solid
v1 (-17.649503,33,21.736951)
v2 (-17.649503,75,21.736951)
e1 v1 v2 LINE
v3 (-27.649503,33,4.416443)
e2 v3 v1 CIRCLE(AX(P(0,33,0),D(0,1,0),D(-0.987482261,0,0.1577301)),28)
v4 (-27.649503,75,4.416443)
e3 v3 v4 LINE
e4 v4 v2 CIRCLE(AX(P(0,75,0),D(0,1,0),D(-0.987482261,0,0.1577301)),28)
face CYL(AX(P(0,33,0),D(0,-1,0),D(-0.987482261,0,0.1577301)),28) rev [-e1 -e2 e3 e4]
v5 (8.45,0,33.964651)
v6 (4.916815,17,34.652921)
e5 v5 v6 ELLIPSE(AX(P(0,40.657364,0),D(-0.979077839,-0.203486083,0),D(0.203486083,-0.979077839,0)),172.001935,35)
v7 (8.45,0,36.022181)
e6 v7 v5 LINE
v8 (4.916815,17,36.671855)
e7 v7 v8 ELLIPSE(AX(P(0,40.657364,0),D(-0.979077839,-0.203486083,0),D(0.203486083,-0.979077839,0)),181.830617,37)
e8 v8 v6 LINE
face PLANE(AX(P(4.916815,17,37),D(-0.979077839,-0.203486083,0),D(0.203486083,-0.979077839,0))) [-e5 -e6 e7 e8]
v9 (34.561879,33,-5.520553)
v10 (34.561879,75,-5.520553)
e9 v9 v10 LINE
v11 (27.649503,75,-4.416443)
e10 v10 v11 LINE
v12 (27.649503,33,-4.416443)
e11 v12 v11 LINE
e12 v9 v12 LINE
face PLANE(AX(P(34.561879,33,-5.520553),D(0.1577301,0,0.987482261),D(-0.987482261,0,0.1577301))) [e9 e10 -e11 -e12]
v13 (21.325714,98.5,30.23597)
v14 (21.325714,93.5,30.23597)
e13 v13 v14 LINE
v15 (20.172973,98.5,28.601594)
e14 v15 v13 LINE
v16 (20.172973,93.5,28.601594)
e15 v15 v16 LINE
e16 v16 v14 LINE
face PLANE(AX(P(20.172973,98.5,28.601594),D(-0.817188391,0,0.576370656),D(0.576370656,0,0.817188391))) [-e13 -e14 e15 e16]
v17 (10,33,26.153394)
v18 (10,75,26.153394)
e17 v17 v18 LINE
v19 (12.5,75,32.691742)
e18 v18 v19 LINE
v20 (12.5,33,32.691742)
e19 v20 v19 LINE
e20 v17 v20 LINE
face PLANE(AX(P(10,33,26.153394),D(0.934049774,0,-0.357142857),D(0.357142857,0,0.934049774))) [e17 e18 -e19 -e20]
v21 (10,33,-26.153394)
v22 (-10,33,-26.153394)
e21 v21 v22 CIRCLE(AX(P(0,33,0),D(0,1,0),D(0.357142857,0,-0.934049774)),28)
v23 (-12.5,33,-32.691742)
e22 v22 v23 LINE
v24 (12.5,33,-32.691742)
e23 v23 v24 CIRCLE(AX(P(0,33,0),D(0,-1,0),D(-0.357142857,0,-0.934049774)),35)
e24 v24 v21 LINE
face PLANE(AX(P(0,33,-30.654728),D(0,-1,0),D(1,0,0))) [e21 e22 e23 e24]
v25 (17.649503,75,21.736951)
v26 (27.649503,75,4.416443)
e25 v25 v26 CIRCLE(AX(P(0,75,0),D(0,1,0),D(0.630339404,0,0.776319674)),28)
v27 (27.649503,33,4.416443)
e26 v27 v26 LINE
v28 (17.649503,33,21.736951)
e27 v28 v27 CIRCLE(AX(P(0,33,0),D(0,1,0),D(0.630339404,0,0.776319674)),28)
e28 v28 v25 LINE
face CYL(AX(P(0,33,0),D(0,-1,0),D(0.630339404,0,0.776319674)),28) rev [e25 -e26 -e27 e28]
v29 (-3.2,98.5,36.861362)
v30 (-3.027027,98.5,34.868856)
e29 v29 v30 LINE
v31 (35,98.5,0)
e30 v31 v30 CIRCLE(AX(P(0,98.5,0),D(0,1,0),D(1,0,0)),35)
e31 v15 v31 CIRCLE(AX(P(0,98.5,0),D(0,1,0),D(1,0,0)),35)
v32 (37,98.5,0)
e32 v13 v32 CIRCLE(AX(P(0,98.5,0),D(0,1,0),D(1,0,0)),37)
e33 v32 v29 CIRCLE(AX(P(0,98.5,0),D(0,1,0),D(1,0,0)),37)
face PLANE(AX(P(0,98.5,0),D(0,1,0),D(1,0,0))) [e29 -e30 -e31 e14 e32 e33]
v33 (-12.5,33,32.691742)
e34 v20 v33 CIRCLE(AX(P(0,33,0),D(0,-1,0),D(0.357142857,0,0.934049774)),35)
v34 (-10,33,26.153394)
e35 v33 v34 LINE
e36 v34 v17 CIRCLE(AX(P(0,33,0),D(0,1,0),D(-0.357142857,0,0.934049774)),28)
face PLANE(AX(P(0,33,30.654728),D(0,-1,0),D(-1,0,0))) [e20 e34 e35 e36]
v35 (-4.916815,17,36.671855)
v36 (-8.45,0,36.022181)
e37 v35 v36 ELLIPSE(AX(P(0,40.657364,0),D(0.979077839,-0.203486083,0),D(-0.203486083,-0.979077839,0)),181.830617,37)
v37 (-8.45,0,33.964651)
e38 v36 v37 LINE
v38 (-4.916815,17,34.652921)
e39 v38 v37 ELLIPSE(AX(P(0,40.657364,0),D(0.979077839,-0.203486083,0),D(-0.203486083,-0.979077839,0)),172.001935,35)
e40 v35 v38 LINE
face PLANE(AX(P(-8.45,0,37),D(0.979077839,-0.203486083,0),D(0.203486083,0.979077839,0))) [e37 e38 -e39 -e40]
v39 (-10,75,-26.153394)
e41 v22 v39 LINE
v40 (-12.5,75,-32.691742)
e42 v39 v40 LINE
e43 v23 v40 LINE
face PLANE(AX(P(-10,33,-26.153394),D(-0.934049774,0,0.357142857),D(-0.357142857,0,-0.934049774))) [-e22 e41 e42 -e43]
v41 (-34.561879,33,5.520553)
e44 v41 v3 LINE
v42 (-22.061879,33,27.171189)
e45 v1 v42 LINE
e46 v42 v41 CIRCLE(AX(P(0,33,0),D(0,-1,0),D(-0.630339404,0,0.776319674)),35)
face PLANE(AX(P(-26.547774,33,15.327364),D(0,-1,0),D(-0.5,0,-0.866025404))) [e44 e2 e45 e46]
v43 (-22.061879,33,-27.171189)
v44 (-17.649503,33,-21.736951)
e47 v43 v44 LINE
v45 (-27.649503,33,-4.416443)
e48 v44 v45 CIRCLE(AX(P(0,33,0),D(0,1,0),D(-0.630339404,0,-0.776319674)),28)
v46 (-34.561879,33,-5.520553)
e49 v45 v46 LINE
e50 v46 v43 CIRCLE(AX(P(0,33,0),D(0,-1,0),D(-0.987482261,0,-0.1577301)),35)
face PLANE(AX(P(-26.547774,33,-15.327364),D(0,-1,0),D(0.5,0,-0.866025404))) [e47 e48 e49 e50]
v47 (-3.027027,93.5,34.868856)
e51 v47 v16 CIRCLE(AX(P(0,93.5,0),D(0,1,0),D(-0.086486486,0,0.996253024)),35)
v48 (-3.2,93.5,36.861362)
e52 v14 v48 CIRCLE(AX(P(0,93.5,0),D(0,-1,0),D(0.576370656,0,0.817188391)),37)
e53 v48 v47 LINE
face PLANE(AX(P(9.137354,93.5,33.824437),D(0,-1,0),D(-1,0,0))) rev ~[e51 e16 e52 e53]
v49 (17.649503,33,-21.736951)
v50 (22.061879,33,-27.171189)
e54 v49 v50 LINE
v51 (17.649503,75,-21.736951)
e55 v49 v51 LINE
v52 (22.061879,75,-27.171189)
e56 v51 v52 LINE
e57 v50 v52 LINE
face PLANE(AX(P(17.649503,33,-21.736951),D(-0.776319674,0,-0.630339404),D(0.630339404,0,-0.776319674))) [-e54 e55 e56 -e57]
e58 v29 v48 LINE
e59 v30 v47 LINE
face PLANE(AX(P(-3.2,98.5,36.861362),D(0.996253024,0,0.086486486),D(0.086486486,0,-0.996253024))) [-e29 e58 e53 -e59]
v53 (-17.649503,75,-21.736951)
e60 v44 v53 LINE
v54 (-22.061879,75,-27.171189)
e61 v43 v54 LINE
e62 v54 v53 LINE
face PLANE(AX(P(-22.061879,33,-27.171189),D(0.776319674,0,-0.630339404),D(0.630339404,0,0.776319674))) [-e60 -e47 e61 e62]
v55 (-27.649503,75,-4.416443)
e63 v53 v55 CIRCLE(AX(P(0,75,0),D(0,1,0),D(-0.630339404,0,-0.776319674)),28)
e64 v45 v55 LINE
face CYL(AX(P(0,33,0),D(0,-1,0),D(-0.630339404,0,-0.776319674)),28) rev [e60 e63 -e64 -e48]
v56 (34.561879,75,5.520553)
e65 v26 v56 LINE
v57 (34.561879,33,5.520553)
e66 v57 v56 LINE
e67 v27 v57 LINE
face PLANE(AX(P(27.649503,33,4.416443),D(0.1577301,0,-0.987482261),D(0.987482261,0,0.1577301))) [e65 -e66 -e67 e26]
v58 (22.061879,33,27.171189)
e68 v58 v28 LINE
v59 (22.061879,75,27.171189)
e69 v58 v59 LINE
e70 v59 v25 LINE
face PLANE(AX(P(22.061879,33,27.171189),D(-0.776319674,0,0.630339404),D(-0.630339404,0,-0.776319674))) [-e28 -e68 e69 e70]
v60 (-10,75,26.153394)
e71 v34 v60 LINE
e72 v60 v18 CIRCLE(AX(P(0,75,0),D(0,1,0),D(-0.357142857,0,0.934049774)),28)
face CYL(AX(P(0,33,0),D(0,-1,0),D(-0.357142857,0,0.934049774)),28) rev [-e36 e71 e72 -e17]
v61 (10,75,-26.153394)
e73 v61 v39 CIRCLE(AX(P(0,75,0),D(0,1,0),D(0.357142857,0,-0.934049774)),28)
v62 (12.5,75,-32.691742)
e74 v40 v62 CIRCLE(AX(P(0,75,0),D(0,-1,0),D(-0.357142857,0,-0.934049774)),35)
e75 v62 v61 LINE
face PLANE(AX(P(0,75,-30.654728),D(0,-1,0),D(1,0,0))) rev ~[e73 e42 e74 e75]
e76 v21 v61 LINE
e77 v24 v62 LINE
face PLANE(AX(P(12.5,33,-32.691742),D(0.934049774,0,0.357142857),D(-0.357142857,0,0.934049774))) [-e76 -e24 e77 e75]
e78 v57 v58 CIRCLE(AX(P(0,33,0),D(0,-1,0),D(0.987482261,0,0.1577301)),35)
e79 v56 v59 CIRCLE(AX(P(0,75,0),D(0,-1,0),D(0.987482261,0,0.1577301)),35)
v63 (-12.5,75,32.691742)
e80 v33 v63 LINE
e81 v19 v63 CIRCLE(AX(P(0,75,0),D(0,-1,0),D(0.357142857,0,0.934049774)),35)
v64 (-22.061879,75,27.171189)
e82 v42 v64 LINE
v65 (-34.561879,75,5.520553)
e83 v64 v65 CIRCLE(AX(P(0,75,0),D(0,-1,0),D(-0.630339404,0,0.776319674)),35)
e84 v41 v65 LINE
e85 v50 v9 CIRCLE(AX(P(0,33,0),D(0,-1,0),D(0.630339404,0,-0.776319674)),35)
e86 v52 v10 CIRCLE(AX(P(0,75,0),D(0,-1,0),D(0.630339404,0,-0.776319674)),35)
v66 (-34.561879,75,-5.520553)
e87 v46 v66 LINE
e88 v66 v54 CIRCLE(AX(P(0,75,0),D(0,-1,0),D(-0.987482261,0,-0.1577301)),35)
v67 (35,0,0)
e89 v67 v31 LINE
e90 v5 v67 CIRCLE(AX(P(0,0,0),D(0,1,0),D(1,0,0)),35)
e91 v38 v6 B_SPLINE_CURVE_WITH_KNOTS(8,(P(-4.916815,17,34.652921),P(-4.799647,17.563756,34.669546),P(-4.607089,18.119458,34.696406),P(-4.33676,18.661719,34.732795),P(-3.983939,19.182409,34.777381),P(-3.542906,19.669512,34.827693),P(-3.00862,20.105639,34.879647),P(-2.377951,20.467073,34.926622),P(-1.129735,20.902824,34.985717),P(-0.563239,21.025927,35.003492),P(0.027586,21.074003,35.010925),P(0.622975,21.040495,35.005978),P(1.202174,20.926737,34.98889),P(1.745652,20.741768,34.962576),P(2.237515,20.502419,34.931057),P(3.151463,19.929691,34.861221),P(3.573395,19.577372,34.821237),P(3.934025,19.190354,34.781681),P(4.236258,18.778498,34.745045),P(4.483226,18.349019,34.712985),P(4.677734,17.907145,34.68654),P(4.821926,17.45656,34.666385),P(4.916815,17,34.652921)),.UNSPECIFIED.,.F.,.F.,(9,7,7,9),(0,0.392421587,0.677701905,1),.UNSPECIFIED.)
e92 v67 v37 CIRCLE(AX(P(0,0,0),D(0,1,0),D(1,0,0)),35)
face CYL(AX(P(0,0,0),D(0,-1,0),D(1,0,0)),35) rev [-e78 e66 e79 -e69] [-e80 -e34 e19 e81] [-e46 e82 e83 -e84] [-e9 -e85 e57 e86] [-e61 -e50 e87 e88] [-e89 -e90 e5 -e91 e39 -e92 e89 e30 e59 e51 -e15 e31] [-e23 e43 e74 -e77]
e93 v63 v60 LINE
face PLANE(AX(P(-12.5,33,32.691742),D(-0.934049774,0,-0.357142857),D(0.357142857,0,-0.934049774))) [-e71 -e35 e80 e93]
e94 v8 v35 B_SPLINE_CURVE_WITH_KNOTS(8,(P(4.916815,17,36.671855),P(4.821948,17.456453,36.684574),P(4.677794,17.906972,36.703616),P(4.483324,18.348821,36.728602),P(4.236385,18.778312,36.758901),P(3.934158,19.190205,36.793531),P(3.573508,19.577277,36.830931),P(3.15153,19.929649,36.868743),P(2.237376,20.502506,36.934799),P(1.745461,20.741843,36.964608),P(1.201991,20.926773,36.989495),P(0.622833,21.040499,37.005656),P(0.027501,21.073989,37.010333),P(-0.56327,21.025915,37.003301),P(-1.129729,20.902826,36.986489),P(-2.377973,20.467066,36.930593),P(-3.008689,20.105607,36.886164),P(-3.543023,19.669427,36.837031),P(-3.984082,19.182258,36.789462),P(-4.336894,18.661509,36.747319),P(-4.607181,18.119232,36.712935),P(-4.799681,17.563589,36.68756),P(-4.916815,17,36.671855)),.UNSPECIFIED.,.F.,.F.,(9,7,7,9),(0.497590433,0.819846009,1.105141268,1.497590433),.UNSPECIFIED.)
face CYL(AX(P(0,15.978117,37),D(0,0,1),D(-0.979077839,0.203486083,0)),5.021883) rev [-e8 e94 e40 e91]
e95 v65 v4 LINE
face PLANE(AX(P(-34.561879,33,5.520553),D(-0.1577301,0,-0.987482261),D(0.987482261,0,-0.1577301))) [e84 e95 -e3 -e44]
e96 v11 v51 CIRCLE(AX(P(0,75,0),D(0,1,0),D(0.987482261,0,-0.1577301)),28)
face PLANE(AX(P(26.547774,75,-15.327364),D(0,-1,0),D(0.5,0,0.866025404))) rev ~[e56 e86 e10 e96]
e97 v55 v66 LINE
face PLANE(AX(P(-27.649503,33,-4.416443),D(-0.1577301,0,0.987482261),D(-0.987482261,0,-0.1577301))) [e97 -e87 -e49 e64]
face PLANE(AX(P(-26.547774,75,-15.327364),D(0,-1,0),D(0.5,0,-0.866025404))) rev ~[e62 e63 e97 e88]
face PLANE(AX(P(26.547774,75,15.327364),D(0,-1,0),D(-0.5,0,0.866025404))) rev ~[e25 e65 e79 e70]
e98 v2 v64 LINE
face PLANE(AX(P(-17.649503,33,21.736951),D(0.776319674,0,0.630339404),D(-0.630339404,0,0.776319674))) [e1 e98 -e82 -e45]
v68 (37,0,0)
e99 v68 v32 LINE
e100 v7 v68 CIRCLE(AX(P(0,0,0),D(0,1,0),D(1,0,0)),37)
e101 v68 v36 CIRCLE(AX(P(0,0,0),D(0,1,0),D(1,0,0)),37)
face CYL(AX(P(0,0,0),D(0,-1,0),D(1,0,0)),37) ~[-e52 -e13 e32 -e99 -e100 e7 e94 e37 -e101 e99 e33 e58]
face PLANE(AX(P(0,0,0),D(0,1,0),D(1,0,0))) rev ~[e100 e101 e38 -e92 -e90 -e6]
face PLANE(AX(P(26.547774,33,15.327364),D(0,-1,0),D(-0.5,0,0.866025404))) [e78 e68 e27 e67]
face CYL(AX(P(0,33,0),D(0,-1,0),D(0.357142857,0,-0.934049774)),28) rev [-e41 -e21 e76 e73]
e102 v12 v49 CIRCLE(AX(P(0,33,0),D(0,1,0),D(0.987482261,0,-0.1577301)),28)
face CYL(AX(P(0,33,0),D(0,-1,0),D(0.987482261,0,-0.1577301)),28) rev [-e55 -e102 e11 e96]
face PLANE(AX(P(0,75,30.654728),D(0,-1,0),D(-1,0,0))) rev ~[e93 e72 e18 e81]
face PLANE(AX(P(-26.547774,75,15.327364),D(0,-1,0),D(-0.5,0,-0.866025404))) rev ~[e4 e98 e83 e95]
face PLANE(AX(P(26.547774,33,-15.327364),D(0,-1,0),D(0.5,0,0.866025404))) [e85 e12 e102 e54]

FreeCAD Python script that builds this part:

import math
import FreeCAD as App
import Part
import Sketcher

doc = App.newDocument("Part")
body = doc.addObject("PartDesign::Body", "Body")

sketch1 = body.newObject("Sketcher::SketchObject", "Sketch")
sketch1.AttachmentSupport = (doc.getObject("XZ_Plane"), [""])
sketch1.MapMode = "FlatFace"
sketch1.addGeometry([
    Part.Circle(App.Vector(0, 0, 0), App.Vector(0, 0, 1), 37),
    Part.Circle(App.Vector(0, 0, 0), App.Vector(0, 0, 1), 35),
], False)
sketch1.addConstraint([
    Sketcher.Constraint("Coincident", 0, 3, -1, 1),
    Sketcher.Constraint("Coincident", 1, 3, -1, 1),
    Sketcher.Constraint("Diameter", 0, 74.0),
    Sketcher.Constraint("Diameter", 1, 70.0),
])
pad1 = body.newObject("PartDesign::Pad", "Pad")
pad1.Profile = sketch1
pad1.Length = 98.5
pad1.Reversed = True

sketch2 = body.newObject("Sketcher::SketchObject", "Sketch001")
sketch2.AttachmentSupport = (doc.getObject("XY_Plane"), [""])
sketch2.MapMode = "FlatFace"
sketch2.AttachmentOffset = App.Placement(App.Vector(0, 0, 37), App.Rotation())
sketch2.addGeometry([
    Part.LineSegment(App.Vector(-4.916815, 17, 0), App.Vector(-8.45, 0, 0)),
    Part.LineSegment(App.Vector(-8.45, 0, 0), App.Vector(8.45, 0, 0)),
    Part.LineSegment(App.Vector(8.45, 0, 0), App.Vector(4.916815, 17, 0)),
    Part.ArcOfCircle(Part.Circle(App.Vector(0, 15.978117, 0), App.Vector(0, 0, 1), 5.021883), math.radians(11.74089), math.radians(168.25911)),
], False)
sketch2.addConstraint([
    Sketcher.Constraint("Coincident", 0, 2, 1, 1),
    Sketcher.Constraint("Coincident", 1, 2, 2, 1),
    Sketcher.Constraint("Tangent", 2, 2, 3, 1),
    Sketcher.Constraint("Tangent", 3, 2, 0, 1),
    Sketcher.Constraint("Horizontal", 1),
    Sketcher.Constraint("Symmetric", 0, 2, 1, 2, -1, 1),
    Sketcher.Constraint("PointOnObject", 3, 3, -2),
    Sketcher.Constraint("DistanceX", 1, 1, 1, 2, 16.9),
    Sketcher.Constraint("DistanceY", -1, 1, 2, 2, 17.0),
    Sketcher.Constraint("Radius", 3, 5.021883),
])
pocket1 = body.newObject("PartDesign::Pocket", "Pocket")
pocket1.Profile = sketch2
pocket1.Type = "UpToFirst"

sketch3 = body.newObject("Sketcher::SketchObject", "Sketch002")
sketch3.AttachmentSupport = (doc.getObject("XZ_Plane"), [""])
sketch3.MapMode = "FlatFace"
sketch3.AttachmentOffset = App.Placement(App.Vector(0, 0, -98.5), App.Rotation())
sketch3.addGeometry([
    Part.LineSegment(App.Vector(21.325714, 30.23597, 0), App.Vector(20.172973, 28.601594, 0)),
    Part.ArcOfCircle(Part.Circle(App.Vector(0, 0, 0), App.Vector(0, 0, 1), 35), math.radians(54.804323), math.radians(94.961509)),
    Part.LineSegment(App.Vector(-3.027027, 34.868856, 0), App.Vector(-3.2, 36.861362, 0)),
    Part.ArcOfCircle(Part.Circle(App.Vector(0, 0, 0), App.Vector(0, 0, 1), 37), math.radians(54.804323), math.radians(94.961509)),
], False)
sketch3.addConstraint([
    Sketcher.Constraint("Coincident", 0, 2, 1, 1),
    Sketcher.Constraint("Coincident", 1, 2, 2, 1),
    Sketcher.Constraint("Coincident", 2, 2, 3, 2),
    Sketcher.Constraint("Coincident", 3, 1, 0, 1),
    Sketcher.Constraint("Coincident", 1, 3, -1, 1),
    Sketcher.Constraint("Coincident", 3, 3, -1, 1),
    Sketcher.Constraint("Radius", 1, 35.0),
    Sketcher.Constraint("Radius", 3, 37.0),
    Sketcher.Constraint("DistanceX", 2, 2, -1, 1, 3.2),
    Sketcher.Constraint("DistanceX", 1, 2, 0, 2, 23.2),
    Sketcher.Constraint("DistanceY", -1, 1, 3, 1, 30.23597),
    Sketcher.Constraint("DistanceY", 0, 2, 2, 2, 8.259768),
])
pocket2 = body.newObject("PartDesign::Pocket", "Pocket001")
pocket2.Profile = sketch3
pocket2.Length = 5
pocket2.Reversed = True

sketch4 = body.newObject("Sketcher::SketchObject", "Sketch003")
sketch4.AttachmentSupport = (doc.getObject("XZ_Plane"), [""])
sketch4.MapMode = "FlatFace"
sketch4.AttachmentOffset = App.Placement(App.Vector(0, 0, -33), App.Rotation())
sketch4.addGeometry([
    Part.LineSegment(App.Vector(-10, 26.153394, 0), App.Vector(-12.5, 32.691742, 0)),
    Part.ArcOfCircle(Part.Circle(App.Vector(0, 0, 0), App.Vector(0, 0, 1), 35), math.radians(69.075168), math.radians(110.924832)),
    Part.LineSegment(App.Vector(12.5, 32.691742, 0), App.Vector(10, 26.153394, 0)),
    Part.ArcOfCircle(Part.Circle(App.Vector(0, 0, 0), App.Vector(0, 0, 1), 28), math.radians(69.075168), math.radians(110.924832)),
], False)
sketch4.addConstraint([
    Sketcher.Constraint("Coincident", 0, 2, 1, 2),
    Sketcher.Constraint("Coincident", 1, 1, 2, 1),
    Sketcher.Constraint("Coincident", 2, 2, 3, 1),
    Sketcher.Constraint("Coincident", 3, 2, 0, 1),
    Sketcher.Constraint("Coincident", 1, 3, -1, 1),
    Sketcher.Constraint("Coincident", 3, 3, -1, 1),
    Sketcher.Constraint("Horizontal", 0, 2, 1, 1),
    Sketcher.Constraint("Horizontal", 2, 2, 3, 2),
    Sketcher.Constraint("Radius", 1, 35.0),
    Sketcher.Constraint("Radius", 3, 28.0),
    Sketcher.Constraint("DistanceX", -1, 1, 2, 2, 10.0),
    Sketcher.Constraint("DistanceX", 0, 2, 1, 1, 25.0),
])
pad2 = body.newObject("PartDesign::Pad", "Pad001")
pad2.Profile = sketch4
pad2.Length = 42
pad2.Reversed = True
doc.recompute()

polarpattern = body.newObject("PartDesign::PolarPattern", "PolarPattern")
polarpattern.Originals = [pad2]
polarpattern.Axis = (doc.getObject("Y_Axis"), [""])
polarpattern.Angle = 360
polarpattern.Occurrences = 6
body.Tip = polarpattern

doc.recompute()
